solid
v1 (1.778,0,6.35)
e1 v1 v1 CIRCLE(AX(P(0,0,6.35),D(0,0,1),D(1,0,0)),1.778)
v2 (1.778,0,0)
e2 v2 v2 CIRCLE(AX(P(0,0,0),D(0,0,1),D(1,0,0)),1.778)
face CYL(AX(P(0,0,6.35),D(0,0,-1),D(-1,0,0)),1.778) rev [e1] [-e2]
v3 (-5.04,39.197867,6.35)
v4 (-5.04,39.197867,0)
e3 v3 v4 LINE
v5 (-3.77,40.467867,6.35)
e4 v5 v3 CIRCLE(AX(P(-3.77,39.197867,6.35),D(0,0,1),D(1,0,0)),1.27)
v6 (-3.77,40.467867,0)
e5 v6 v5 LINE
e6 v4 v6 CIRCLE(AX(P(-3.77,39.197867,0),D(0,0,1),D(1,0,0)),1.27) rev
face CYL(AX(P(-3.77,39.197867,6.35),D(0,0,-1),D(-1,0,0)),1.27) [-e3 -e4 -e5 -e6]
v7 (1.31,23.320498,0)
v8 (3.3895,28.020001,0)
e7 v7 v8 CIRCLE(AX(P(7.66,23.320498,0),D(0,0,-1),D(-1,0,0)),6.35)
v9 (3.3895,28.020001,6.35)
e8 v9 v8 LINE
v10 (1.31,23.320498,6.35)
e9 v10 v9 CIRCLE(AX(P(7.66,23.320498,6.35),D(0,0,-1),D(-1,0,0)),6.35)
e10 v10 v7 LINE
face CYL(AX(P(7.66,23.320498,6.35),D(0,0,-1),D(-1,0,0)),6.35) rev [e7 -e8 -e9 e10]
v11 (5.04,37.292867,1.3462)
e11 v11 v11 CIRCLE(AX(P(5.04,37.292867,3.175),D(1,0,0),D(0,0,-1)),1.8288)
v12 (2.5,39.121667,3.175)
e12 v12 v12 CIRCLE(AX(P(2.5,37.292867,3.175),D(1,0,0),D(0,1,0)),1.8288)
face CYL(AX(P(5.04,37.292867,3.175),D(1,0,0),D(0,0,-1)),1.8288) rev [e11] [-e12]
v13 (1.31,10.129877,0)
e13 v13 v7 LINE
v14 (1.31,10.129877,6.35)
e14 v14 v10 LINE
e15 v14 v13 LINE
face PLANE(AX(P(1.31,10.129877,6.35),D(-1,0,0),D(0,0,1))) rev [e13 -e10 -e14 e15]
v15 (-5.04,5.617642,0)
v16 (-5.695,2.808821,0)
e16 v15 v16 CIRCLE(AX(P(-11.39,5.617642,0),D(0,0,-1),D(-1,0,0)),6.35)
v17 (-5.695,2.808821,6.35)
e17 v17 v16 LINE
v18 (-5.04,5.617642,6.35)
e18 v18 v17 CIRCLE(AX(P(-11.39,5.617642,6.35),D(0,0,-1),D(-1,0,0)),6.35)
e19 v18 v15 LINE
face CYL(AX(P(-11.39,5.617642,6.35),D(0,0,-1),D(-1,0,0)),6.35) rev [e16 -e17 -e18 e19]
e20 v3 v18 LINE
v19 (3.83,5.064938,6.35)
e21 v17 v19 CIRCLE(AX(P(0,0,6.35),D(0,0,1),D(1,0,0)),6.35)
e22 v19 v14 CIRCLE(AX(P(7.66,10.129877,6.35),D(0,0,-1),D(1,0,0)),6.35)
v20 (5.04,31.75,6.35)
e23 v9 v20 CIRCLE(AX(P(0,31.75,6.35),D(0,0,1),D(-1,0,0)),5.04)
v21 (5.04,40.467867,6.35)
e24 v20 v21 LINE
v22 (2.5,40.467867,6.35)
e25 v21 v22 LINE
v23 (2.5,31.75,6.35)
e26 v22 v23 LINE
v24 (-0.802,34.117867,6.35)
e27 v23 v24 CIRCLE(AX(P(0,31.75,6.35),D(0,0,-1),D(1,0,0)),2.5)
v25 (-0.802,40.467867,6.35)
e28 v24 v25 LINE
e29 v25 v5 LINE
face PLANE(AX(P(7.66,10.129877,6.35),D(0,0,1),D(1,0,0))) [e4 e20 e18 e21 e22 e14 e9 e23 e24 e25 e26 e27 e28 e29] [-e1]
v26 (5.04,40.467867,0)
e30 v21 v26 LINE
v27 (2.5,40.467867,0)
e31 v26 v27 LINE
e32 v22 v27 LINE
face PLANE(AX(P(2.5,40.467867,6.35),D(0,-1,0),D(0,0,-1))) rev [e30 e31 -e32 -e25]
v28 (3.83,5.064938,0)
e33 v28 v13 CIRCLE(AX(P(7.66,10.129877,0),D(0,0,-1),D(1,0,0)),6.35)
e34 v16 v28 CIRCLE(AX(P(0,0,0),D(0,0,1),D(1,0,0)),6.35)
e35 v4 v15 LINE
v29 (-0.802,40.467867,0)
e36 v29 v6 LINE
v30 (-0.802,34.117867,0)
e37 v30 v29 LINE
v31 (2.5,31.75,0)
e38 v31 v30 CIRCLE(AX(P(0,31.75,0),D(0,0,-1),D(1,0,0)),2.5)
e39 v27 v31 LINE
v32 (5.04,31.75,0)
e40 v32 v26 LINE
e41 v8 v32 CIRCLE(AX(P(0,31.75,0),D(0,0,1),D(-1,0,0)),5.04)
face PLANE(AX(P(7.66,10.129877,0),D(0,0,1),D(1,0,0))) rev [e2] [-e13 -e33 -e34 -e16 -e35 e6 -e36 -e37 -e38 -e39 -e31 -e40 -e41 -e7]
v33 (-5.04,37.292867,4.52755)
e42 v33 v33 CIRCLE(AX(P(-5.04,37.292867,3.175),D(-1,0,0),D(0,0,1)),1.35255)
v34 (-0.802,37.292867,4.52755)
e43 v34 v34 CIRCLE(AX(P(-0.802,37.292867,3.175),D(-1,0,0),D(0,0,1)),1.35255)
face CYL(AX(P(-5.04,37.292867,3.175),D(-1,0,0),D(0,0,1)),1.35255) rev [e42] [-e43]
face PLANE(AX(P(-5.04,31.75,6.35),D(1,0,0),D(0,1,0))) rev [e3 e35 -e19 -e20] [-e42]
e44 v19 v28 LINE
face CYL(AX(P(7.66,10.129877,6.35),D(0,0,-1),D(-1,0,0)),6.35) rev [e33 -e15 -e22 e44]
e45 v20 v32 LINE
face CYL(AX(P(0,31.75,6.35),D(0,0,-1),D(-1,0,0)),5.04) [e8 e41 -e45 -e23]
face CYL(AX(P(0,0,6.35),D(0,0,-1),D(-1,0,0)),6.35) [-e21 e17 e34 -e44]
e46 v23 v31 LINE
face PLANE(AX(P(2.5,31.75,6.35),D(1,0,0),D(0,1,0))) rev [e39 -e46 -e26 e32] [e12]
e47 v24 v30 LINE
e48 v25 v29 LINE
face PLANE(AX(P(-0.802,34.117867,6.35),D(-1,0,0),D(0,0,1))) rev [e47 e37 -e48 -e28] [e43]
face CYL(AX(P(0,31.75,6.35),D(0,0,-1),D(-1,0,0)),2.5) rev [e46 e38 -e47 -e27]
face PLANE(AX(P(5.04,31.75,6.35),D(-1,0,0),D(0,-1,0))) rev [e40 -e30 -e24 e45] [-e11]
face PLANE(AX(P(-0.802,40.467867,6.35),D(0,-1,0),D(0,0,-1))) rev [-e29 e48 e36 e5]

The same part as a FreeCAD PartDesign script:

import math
import FreeCAD as App
import Part
import Sketcher
from FreeCAD import Vector
Q = App.Units.Quantity


def edges_at(feature, points):
    """Names of the edges that pass closest to the given points."""
    edges = feature.Shape.Edges
    near = lambda p: min(range(len(edges)), key=lambda i: edges[i].distToShape(Part.Vertex(*p))[0])
    return sorted({f"Edge{near(p) + 1}" for p in points})

doc = App.newDocument("Part")
body = doc.addObject("PartDesign::Body", "Body")

# Sketch on XY plane
sketch1 = doc.addObject("Sketcher::SketchObject", "Sketch")
body.addObject(sketch1)
sketch1.AttachmentSupport = (doc.XY_Plane, [""])
sketch1.MapMode = "FlatFace"
sketch1.addGeometry(Part.LineSegment(Vector(-5, 40.5, 0), Vector(-5, 5.6, 0)), False)
sketch1.addGeometry(Part.ArcOfCircle(Part.Circle(Vector(-11.4, 5.6, 0), Vector(0, 0, 1), 6.4), math.radians(-26), math.radians(0)), False)
sketch1.addGeometry(Part.ArcOfCircle(Part.Circle(Vector(0, 0, 0), Vector(0, 0, 1), 6.3), math.radians(154), math.radians(413)), False)
sketch1.addGeometry(Part.ArcOfCircle(Part.Circle(Vector(7.7, 10.1, 0), Vector(0, 0, 1), 6.3), math.radians(-180), math.radians(-127)), False)
sketch1.addGeometry(Part.LineSegment(Vector(1.3, 10.1, 0), Vector(1.3, 23.3, 0)), False)
sketch1.addGeometry(Part.ArcOfCircle(Part.Circle(Vector(7.7, 23.3, 0), Vector(0, 0, 1), 6.3), math.radians(132), math.radians(180)), False)
sketch1.addGeometry(Part.ArcOfCircle(Part.Circle(Vector(0, 31.8, 0), Vector(0, 0, 1), 5), math.radians(-48), math.radians(0)), False)
sketch1.addGeometry(Part.LineSegment(Vector(5, 31.8, 0), Vector(5, 40.5, 0)), False)
sketch1.addGeometry(Part.LineSegment(Vector(5, 40.5, 0), Vector(2.5, 40.5, 0)), False)
sketch1.addGeometry(Part.LineSegment(Vector(2.5, 40.5, 0), Vector(2.5, 31.8, 0)), False)
sketch1.addGeometry(Part.ArcOfCircle(Part.Circle(Vector(0, 31.8, 0), Vector(0, 0, 1), 2.5), math.radians(109), math.radians(360)), False)
sketch1.addGeometry(Part.LineSegment(Vector(-0.8, 34.1, 0), Vector(-0.8, 40.5, 0)), False)
sketch1.addGeometry(Part.LineSegment(Vector(-0.8, 40.5, 0), Vector(-5, 40.5, 0)), False)
sketch1.addGeometry(Part.Circle(Vector(0, 0, 0), Vector(0, 0, 1), 1.8), False)
sketch1.addConstraint(Sketcher.Constraint("Tangent", 0, 2, 1, 2))
sketch1.addConstraint(Sketcher.Constraint("Tangent", 1, 1, 2, 1))
sketch1.addConstraint(Sketcher.Constraint("Tangent", 2, 2, 3, 2))
sketch1.addConstraint(Sketcher.Constraint("Tangent", 3, 1, 4, 1))
sketch1.addConstraint(Sketcher.Constraint("Tangent", 4, 2, 5, 2))
sketch1.addConstraint(Sketcher.Constraint("Tangent", 5, 1, 6, 1))
sketch1.addConstraint(Sketcher.Constraint("Tangent", 6, 2, 7, 1))
sketch1.addConstraint(Sketcher.Constraint("Coincident", 7, 2, 8, 1))
sketch1.addConstraint(Sketcher.Constraint("Coincident", 8, 2, 9, 1))
sketch1.addConstraint(Sketcher.Constraint("Tangent", 9, 2, 10, 2))
sketch1.addConstraint(Sketcher.Constraint("Coincident", 10, 1, 11, 1))
sketch1.addConstraint(Sketcher.Constraint("Coincident", 11, 2, 12, 1))
sketch1.addConstraint(Sketcher.Constraint("Coincident", 12, 2, 0, 1))
sketch1.addConstraint(Sketcher.Constraint("Vertical", 0))
sketch1.addConstraint(Sketcher.Constraint("Vertical", 4))
sketch1.addConstraint(Sketcher.Constraint("Vertical", 7))
sketch1.addConstraint(Sketcher.Constraint("Horizontal", 8))
sketch1.addConstraint(Sketcher.Constraint("Vertical", 9))
sketch1.addConstraint(Sketcher.Constraint("Vertical", 11))
sketch1.addConstraint(Sketcher.Constraint("Horizontal", 12))
sketch1.addConstraint(Sketcher.Constraint("Coincident", 2, 3, -1, 1))
sketch1.addConstraint(Sketcher.Constraint("Coincident", 13, 3, -1, 1))
sketch1.addConstraint(Sketcher.Constraint("Coincident", 10, 3, 6, 3))
sketch1.addConstraint(Sketcher.Constraint("Equal", 1, 2))
sketch1.addConstraint(Sketcher.Constraint("Equal", 2, 3))
sketch1.addConstraint(Sketcher.Constraint("Equal", 3, 5))
sketch1.addConstraint(Sketcher.Constraint("Symmetric", 7, 2, 12, 2, -2))
sketch1.addConstraint(Sketcher.Constraint("PointOnObject", 6, 3, -2))
sketch1.addConstraint(Sketcher.Constraint("Diameter", 13, Q("0.14 in")))
sketch1.addConstraint(Sketcher.Constraint("Radius", 1, Q("0.25 in")))
sketch1.addConstraint(Sketcher.Constraint("DistanceX", 8, 2, 8, 1, Q("0.1 in")))
sketch1.addConstraint(Sketcher.Constraint("DistanceY", 11, 1, 11, 2, Q("0.25 in")))
sketch1.addConstraint(Sketcher.Constraint("DistanceX", 0, 2, 3, 3, Q("0.5 in")))
sketch1.addConstraint(Sketcher.Constraint("DistanceY", -1, 1, 6, 3, Q("1.25 in")))
sketch1.addConstraint(Sketcher.Constraint("Radius", 6, 5.04))
sketch1.addConstraint(Sketcher.Constraint("DistanceX", 10, 1, 9, 2, Q("0.13 in")))
pad1 = doc.addObject("PartDesign::Pad", "Pad")
body.addObject(pad1)
pad1.Profile = sketch1
pad1.Length = Q("0.25 in")
doc.recompute()

fillet = doc.addObject("PartDesign::Fillet", "Fillet")
body.addObject(fillet)
fillet.Base = (pad1, edges_at(pad1, [(-5.04, 40.468, 3.175)]))
fillet.Radius = Q("0.05 in")

# Sketch on YZ plane
sketch2 = doc.addObject("Sketcher::SketchObject", "Sketch001")
body.addObject(sketch2)
sketch2.AttachmentSupport = (doc.YZ_Plane, [""])
sketch2.MapMode = "FlatFace"
sketch2.AttachmentOffset = App.Placement(Vector(0, 0, -5.04), App.Rotation())
sketch2.addGeometry(Part.Circle(Vector(37.3, 3.2, 0), Vector(0, 0, 1), 1.4), False)
sketch2.addConstraint(Sketcher.Constraint("Diameter", 0, Q("0.1065 in")))
sketch2.addConstraint(Sketcher.Constraint("DistanceY", -1, 1, 0, 3, Q("0.125 in")))
sketch2.addConstraint(Sketcher.Constraint("DistanceX", -1, 1, 0, 3, 37.292867))
doc.recompute()
hole = doc.addObject("PartDesign::Hole", "Hole")
body.addObject(hole)
hole.Profile = sketch2
hole.ThreadType = "None"
hole.Diameter = Q("0.1065 in")
hole.DepthType = "ThroughAll"
hole.Reversed = True

# Sketch on YZ plane
sketch3 = doc.addObject("Sketcher::SketchObject", "Sketch002")
body.addObject(sketch3)
sketch3.AttachmentSupport = (doc.YZ_Plane, [""])
sketch3.MapMode = "FlatFace"
sketch3.AttachmentOffset = App.Placement(Vector(0, 0, 5.04), App.Rotation())
sketch3.addGeometry(Part.Circle(Vector(37.3, 3.2, 0), Vector(0, 0, 1), 1.8), False)
sketch3.addConstraint(Sketcher.Constraint("Diameter", 0, Q("0.144 in")))
sketch3.addConstraint(Sketcher.Constraint("DistanceY", -1, 1, 0, 3, Q("0.125 in")))
sketch3.addConstraint(Sketcher.Constraint("DistanceX", -1, 1, 0, 3, 37.292867))
doc.recompute()
hole2 = doc.addObject("PartDesign::Hole", "Hole001")
body.addObject(hole2)
hole2.Profile = sketch3
hole2.ThreadType = "None"
hole2.Diameter = Q("0.144 in")
hole2.DepthType = "Dimension"
hole2.Depth = Q("0.125 in")
hole2.DrillPoint = "Angled"
hole2.DrillPointAngle = 118

doc.recompute()
